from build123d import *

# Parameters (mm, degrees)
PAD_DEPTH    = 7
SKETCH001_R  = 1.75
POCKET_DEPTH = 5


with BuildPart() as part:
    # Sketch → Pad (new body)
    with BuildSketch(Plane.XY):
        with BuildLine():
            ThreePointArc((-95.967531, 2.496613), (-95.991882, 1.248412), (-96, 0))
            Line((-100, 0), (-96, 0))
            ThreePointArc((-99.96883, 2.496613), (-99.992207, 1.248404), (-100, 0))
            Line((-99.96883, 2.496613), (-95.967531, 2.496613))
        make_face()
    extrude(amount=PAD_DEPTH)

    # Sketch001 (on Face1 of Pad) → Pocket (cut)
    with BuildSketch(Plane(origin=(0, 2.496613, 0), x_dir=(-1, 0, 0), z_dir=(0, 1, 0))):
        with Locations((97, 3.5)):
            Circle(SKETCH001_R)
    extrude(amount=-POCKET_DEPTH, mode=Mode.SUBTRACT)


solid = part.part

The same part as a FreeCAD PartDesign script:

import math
import FreeCAD as App
import Part
import Sketcher
from FreeCAD import Vector
Q = App.Units.Quantity

doc = App.newDocument("Part")
body = doc.addObject("PartDesign::Body", "Body")

# Sketch on XY plane
sketch1 = body.newObject("Sketcher::SketchObject", "Sketch")
sketch1.AttachmentSupport = (doc.getObject("XY_Plane"), [""])
sketch1.MapMode = "FlatFace"
sketch1.addGeometry([
    Part.ArcOfCircle(Part.Circle(Vector(0, 0, 0), Vector(0, 0, 1), 96), math.radians(178.51), math.radians(180)),
    Part.LineSegment(Vector(-96, 2.5, 0), Vector(-100, 2.5, 0)),
    Part.ArcOfCircle(Part.Circle(Vector(0, 0, 0), Vector(0, 0, 1), 100), math.radians(178.57), math.radians(180)),
    Part.LineSegment(Vector(-100, 0, 0), Vector(-96, 0, 0)),
], False)
sketch1.addConstraint([
    Sketcher.Constraint("Coincident", 0, 1, 1, 1),
    Sketcher.Constraint("Coincident", 1, 2, 2, 1),
    Sketcher.Constraint("Coincident", 2, 2, 3, 1),
    Sketcher.Constraint("Coincident", 3, 2, 0, 2),
    Sketcher.Constraint("Horizontal", 1),
    Sketcher.Constraint("Horizontal", 3),
    Sketcher.Constraint("PointOnObject", 2, 2, -1),
    Sketcher.Constraint("DistanceX", 3, 1, 3, 2, Q("4 mm")),
    Sketcher.Constraint("DistanceX", 2, 2, -1, 1, Q("100 mm")),
    Sketcher.Constraint("DistanceX", 1, 2, 1, 1, Q("4.001299 mm")),
    Sketcher.Constraint("Radius", 0, Q("96.006094 mm")),
    Sketcher.Constraint("Radius", 2, Q("100.003256 mm")),
    Sketcher.Constraint("DistanceX", 0, 1, -1, 1, Q("95.967531 mm")),
    Sketcher.Constraint("DistanceY", -1, 1, 0, 1, Q("2.496613 mm")),
])
pad1 = body.newObject("PartDesign::Pad", "Pad")
pad1.Profile = sketch1
pad1.Length = 7

# Sketch on XZ plane
sketch2 = body.newObject("Sketcher::SketchObject", "Sketch001")
sketch2.AttachmentSupport = (doc.getObject("XZ_Plane"), [""])
sketch2.MapMode = "FlatFace"
sketch2.AttachmentOffset = App.Placement(Vector(0, 0, -2.496613), App.Rotation())
sketch2.addGeometry(Part.Circle(Vector(-97, 3.5, 0), Vector(0, 0, 1), 1.8), False)
sketch2.addConstraint([
    Sketcher.Constraint("Diameter", 0, Q("3.5 mm")),
    Sketcher.Constraint("DistanceX", 0, 3, -1, 1, Q("97 mm")),
    Sketcher.Constraint("DistanceY", -1, 1, 0, 3, Q("3.5 mm")),
])
pocket1 = body.newObject("PartDesign::Pocket", "Pocket")
pocket1.Profile = sketch2
pocket1.Length = 5
pocket1.Reversed = True

doc.recompute()
